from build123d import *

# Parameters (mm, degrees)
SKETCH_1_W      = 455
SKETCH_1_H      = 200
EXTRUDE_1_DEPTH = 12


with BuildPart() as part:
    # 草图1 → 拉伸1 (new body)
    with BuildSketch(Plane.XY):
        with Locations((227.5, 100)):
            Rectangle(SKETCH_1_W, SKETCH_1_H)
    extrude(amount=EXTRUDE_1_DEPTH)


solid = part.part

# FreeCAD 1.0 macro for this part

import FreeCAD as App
import Part
import Sketcher
Q = App.Units.Quantity

doc = App.newDocument("Part")
body = doc.addObject("PartDesign::Body", "Body")

sketch1 = body.newObject("Sketcher::SketchObject", "Sketch")
sketch1.AttachmentSupport = (doc.getObject("XY_Plane"), [""])
sketch1.MapMode = "FlatFace"
sketch1.addGeometry(Part.LineSegment(App.Vector(0, 200, 0), App.Vector(0, 0, 0)), False)
sketch1.addGeometry(Part.LineSegment(App.Vector(0, 0, 0), App.Vector(455, 0, 0)), False)
sketch1.addGeometry(Part.LineSegment(App.Vector(455, 0, 0), App.Vector(455, 200, 0)), False)
sketch1.addGeometry(Part.LineSegment(App.Vector(455, 200, 0), App.Vector(0, 200, 0)), False)
sketch1.addConstraint(Sketcher.Constraint("Coincident", 0, 2, 1, 1))
sketch1.addConstraint(Sketcher.Constraint("Coincident", 1, 2, 2, 1))
sketch1.addConstraint(Sketcher.Constraint("Coincident", 2, 2, 3, 1))
sketch1.addConstraint(Sketcher.Constraint("Coincident", 3, 2, 0, 1))
sketch1.addConstraint(Sketcher.Constraint("Vertical", 0))
sketch1.addConstraint(Sketcher.Constraint("Horizontal", 1))
sketch1.addConstraint(Sketcher.Constraint("Vertical", 2))
sketch1.addConstraint(Sketcher.Constraint("Horizontal", 3))
sketch1.addConstraint(Sketcher.Constraint("Coincident", 0, 2, -1, 1))
sketch1.addConstraint(Sketcher.Constraint("DistanceX", 1, 1, 1, 2, Q("455 mm")))
sketch1.addConstraint(Sketcher.Constraint("DistanceY", 0, 2, 0, 1, Q("200 mm")))
pad1 = body.newObject("PartDesign::Pad", "Pad")
pad1.Profile = sketch1
pad1.Length = 12

doc.recompute()
